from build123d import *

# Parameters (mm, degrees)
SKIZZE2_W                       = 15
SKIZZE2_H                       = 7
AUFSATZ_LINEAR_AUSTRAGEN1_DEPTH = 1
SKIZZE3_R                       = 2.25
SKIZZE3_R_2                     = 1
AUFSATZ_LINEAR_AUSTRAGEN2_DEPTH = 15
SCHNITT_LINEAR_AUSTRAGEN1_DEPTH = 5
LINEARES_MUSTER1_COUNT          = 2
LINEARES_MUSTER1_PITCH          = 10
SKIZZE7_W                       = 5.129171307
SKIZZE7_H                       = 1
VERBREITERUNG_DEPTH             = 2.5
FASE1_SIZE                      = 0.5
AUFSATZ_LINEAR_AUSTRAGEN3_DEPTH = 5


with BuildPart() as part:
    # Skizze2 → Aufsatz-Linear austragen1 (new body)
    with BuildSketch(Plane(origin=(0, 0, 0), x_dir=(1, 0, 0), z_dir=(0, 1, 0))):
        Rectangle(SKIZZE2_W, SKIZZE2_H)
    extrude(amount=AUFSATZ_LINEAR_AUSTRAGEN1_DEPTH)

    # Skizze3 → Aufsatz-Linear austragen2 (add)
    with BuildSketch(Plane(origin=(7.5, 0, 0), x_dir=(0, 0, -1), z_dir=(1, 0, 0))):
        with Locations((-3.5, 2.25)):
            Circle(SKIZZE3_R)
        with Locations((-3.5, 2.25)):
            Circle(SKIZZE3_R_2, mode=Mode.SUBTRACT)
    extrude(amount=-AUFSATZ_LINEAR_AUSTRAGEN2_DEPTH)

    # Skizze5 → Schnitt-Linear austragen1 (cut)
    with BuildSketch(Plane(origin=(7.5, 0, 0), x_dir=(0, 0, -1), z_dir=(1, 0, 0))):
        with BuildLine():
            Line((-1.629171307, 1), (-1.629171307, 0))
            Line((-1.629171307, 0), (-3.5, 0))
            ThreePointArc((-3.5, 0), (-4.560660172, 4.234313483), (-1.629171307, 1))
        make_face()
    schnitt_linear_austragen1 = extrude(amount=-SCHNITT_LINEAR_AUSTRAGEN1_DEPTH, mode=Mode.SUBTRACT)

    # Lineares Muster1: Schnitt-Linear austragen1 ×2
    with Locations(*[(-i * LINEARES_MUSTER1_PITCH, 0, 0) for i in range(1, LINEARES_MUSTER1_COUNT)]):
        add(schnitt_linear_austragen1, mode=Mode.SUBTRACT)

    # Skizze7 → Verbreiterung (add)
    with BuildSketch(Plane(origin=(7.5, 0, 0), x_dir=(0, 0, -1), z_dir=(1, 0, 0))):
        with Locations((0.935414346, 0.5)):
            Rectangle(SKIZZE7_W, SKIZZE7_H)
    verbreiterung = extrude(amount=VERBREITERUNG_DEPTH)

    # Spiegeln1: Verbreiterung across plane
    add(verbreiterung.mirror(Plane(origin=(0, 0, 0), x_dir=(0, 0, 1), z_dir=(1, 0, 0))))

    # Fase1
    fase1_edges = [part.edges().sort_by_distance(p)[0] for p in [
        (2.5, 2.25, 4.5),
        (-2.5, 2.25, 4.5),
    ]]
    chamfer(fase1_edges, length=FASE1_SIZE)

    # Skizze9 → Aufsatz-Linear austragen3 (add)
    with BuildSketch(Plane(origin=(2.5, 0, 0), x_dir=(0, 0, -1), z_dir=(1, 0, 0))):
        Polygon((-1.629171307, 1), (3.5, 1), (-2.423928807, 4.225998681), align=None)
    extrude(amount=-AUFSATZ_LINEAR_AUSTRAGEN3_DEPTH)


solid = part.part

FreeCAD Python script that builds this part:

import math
import FreeCAD as App
import Part
import Sketcher
from FreeCAD import Vector
Q = App.Units.Quantity


def edges_at(feature, points):
    """Names of the edges that pass closest to the given points."""
    edges = feature.Shape.Edges
    near = lambda p: min(range(len(edges)), key=lambda i: edges[i].distToShape(Part.Vertex(*p))[0])
    return sorted({f"Edge{near(p) + 1}" for p in points})

doc = App.newDocument("Part")
body = doc.addObject("PartDesign::Body", "Body")

# Sketch on XZ plane
sketch1 = body.newObject("Sketcher::SketchObject", "Sketch")
sketch1.AttachmentSupport = (doc.getObject("XZ_Plane"), [""])
sketch1.MapMode = "FlatFace"
sketch1.addGeometry([
    Part.LineSegment(Vector(-8, -4, 0), Vector(-8, 4, 0)),
    Part.LineSegment(Vector(-8, 4, 0), Vector(8, 4, 0)),
    Part.LineSegment(Vector(8, 4, 0), Vector(8, -4, 0)),
    Part.LineSegment(Vector(8, -4, 0), Vector(-8, -4, 0)),
], False)
sketch1.addConstraint([
    Sketcher.Constraint("Coincident", 0, 2, 1, 1),
    Sketcher.Constraint("Coincident", 1, 2, 2, 1),
    Sketcher.Constraint("Coincident", 2, 2, 3, 1),
    Sketcher.Constraint("Coincident", 3, 2, 0, 1),
    Sketcher.Constraint("Vertical", 0),
    Sketcher.Constraint("Horizontal", 1),
    Sketcher.Constraint("Vertical", 2),
    Sketcher.Constraint("Horizontal", 3),
    Sketcher.Constraint("Symmetric", 0, 2, 2, 2, -1, 1),
    Sketcher.Constraint("DistanceX", 1, 1, 1, 2, Q("15 mm")),
    Sketcher.Constraint("DistanceY", 0, 1, 0, 2, Q("7 mm")),
])
pad1 = body.newObject("PartDesign::Pad", "Pad")
pad1.Profile = sketch1
pad1.Length = 1
pad1.Reversed = True

# Sketch on YZ plane
sketch2 = body.newObject("Sketcher::SketchObject", "Sketch001")
sketch2.AttachmentSupport = (doc.getObject("YZ_Plane"), [""])
sketch2.MapMode = "FlatFace"
sketch2.AttachmentOffset = App.Placement(Vector(0, 0, 7.5), App.Rotation())
sketch2.addGeometry([
    Part.Circle(Vector(2.2, 3.5, 0), Vector(0, 0, 1), 2.2),
    Part.Circle(Vector(2.2, 3.5, 0), Vector(0, 0, 1), 1),
], False)
sketch2.addConstraint([
    Sketcher.Constraint("Coincident", 1, 3, 0, 3),
    Sketcher.Constraint("Diameter", 1, Q("2 mm")),
    Sketcher.Constraint("Diameter", 0, Q("4.5 mm")),
    Sketcher.Constraint("DistanceY", -1, 1, 0, 3, Q("3.5 mm")),
    Sketcher.Constraint("DistanceX", -1, 1, 0, 3, Q("2.25 mm")),
])
pad2 = body.newObject("PartDesign::Pad", "Pad001")
pad2.Profile = sketch2
pad2.Length = 15
pad2.Reversed = True

# Sketch on YZ plane
sketch3 = body.newObject("Sketcher::SketchObject", "Sketch002")
sketch3.AttachmentSupport = (doc.getObject("YZ_Plane"), [""])
sketch3.MapMode = "FlatFace"
sketch3.AttachmentOffset = App.Placement(Vector(0, 0, 7.5), App.Rotation())
sketch3.addGeometry([
    Part.LineSegment(Vector(0, 1.6, 0), Vector(1, 1.6, 0)),
    Part.ArcOfCircle(Part.Circle(Vector(2.2, 3.5, 0), Vector(0, 0, 1), 2.2), math.radians(-124), math.radians(180)),
    Part.LineSegment(Vector(0, 3.5, 0), Vector(0, 1.6, 0)),
], False)
sketch3.addConstraint([
    Sketcher.Constraint("Coincident", 0, 2, 1, 1),
    Sketcher.Constraint("Tangent", 1, 2, 2, 1),
    Sketcher.Constraint("Coincident", 2, 2, 0, 1),
    Sketcher.Constraint("Horizontal", 0),
    Sketcher.Constraint("Vertical", 2),
    Sketcher.Constraint("PointOnObject", 1, 2, -2),
    Sketcher.Constraint("DistanceX", 0, 1, 0, 2, Q("1 mm")),
    Sketcher.Constraint("Radius", 1, Q("2.25 mm")),
    Sketcher.Constraint("DistanceY", -1, 1, 1, 3, Q("3.5 mm")),
])
pocket1 = body.newObject("PartDesign::Pocket", "Pocket")
pocket1.Profile = sketch3
pocket1.Length = 5
doc.recompute()

linearpattern = body.newObject("PartDesign::LinearPattern", "LinearPattern")
linearpattern.Originals = [pocket1]
linearpattern.Direction = (doc.getObject("X_Axis"), [""])
linearpattern.Mode = "offset"
linearpattern.Offset = 10
linearpattern.Occurrences = 2
linearpattern.Reversed = True
body.Tip = linearpattern

# Sketch on YZ plane
sketch4 = body.newObject("Sketcher::SketchObject", "Sketch003")
sketch4.AttachmentSupport = (doc.getObject("YZ_Plane"), [""])
sketch4.MapMode = "FlatFace"
sketch4.AttachmentOffset = App.Placement(Vector(0, 0, 7.5), App.Rotation())
sketch4.addGeometry([
    Part.LineSegment(Vector(1, 1.6, 0), Vector(0, 1.6, 0)),
    Part.LineSegment(Vector(0, 1.6, 0), Vector(0, -3.5, 0)),
    Part.LineSegment(Vector(0, -3.5, 0), Vector(1, -3.5, 0)),
    Part.LineSegment(Vector(1, -3.5, 0), Vector(1, 1.6, 0)),
], False)
sketch4.addConstraint([
    Sketcher.Constraint("Coincident", 0, 2, 1, 1),
    Sketcher.Constraint("Coincident", 1, 2, 2, 1),
    Sketcher.Constraint("Coincident", 2, 2, 3, 1),
    Sketcher.Constraint("Coincident", 3, 2, 0, 1),
    Sketcher.Constraint("Horizontal", 0),
    Sketcher.Constraint("Vertical", 1),
    Sketcher.Constraint("Horizontal", 2),
    Sketcher.Constraint("Vertical", 3),
    Sketcher.Constraint("PointOnObject", 0, 2, -2),
    Sketcher.Constraint("DistanceX", 0, 2, 0, 1, Q("1 mm")),
    Sketcher.Constraint("DistanceY", 1, 2, -1, 1, Q("3.5 mm")),
    Sketcher.Constraint("DistanceY", 1, 2, 1, 1, Q("5.129171 mm")),
])
pad3 = body.newObject("PartDesign::Pad", "Pad002")
pad3.Profile = sketch4
pad3.Length = 2.5
doc.recompute()

mirrored = body.newObject("PartDesign::Mirrored", "Mirrored")
mirrored.Originals = [pad3]
mirrored.MirrorPlane = (doc.getObject("YZ_Plane"), [""])
body.Tip = mirrored
doc.recompute()

chamfer = body.newObject("PartDesign::Chamfer", "Chamfer")
chamfer.Base = (mirrored, edges_at(mirrored, [(2.5, 2.25, 4.5), (-2.5, 2.25, 4.5)]))
chamfer.Size = 0.5

# Sketch on YZ plane
sketch5 = body.newObject("Sketcher::SketchObject", "Sketch004")
sketch5.AttachmentSupport = (doc.getObject("YZ_Plane"), [""])
sketch5.MapMode = "FlatFace"
sketch5.AttachmentOffset = App.Placement(Vector(0, 0, 2.5), App.Rotation())
sketch5.addGeometry([
    Part.LineSegment(Vector(1, 1.6, 0), Vector(1, -3.5, 0)),
    Part.LineSegment(Vector(1, -3.5, 0), Vector(4.2, 2.4, 0)),
    Part.LineSegment(Vector(4.2, 2.4, 0), Vector(1, 1.6, 0)),
], False)
sketch5.addConstraint([
    Sketcher.Constraint("Coincident", 0, 2, 1, 1),
    Sketcher.Constraint("Coincident", 1, 2, 2, 1),
    Sketcher.Constraint("Coincident", 2, 2, 0, 1),
    Sketcher.Constraint("Vertical", 0),
    Sketcher.Constraint("DistanceX", -1, 1, 0, 2, Q("1 mm")),
    Sketcher.Constraint("DistanceY", 0, 2, -1, 1, Q("3.5 mm")),
    Sketcher.Constraint("DistanceX", -1, 1, 1, 2, Q("4.225999 mm")),
    Sketcher.Constraint("DistanceY", 0, 2, 0, 1, Q("5.129171 mm")),
    Sketcher.Constraint("Distance", 1, Q("6.745369 mm")),
])
pad4 = body.newObject("PartDesign::Pad", "Pad003")
pad4.Profile = sketch5
pad4.Length = 5
pad4.Reversed = True

doc.recompute()
